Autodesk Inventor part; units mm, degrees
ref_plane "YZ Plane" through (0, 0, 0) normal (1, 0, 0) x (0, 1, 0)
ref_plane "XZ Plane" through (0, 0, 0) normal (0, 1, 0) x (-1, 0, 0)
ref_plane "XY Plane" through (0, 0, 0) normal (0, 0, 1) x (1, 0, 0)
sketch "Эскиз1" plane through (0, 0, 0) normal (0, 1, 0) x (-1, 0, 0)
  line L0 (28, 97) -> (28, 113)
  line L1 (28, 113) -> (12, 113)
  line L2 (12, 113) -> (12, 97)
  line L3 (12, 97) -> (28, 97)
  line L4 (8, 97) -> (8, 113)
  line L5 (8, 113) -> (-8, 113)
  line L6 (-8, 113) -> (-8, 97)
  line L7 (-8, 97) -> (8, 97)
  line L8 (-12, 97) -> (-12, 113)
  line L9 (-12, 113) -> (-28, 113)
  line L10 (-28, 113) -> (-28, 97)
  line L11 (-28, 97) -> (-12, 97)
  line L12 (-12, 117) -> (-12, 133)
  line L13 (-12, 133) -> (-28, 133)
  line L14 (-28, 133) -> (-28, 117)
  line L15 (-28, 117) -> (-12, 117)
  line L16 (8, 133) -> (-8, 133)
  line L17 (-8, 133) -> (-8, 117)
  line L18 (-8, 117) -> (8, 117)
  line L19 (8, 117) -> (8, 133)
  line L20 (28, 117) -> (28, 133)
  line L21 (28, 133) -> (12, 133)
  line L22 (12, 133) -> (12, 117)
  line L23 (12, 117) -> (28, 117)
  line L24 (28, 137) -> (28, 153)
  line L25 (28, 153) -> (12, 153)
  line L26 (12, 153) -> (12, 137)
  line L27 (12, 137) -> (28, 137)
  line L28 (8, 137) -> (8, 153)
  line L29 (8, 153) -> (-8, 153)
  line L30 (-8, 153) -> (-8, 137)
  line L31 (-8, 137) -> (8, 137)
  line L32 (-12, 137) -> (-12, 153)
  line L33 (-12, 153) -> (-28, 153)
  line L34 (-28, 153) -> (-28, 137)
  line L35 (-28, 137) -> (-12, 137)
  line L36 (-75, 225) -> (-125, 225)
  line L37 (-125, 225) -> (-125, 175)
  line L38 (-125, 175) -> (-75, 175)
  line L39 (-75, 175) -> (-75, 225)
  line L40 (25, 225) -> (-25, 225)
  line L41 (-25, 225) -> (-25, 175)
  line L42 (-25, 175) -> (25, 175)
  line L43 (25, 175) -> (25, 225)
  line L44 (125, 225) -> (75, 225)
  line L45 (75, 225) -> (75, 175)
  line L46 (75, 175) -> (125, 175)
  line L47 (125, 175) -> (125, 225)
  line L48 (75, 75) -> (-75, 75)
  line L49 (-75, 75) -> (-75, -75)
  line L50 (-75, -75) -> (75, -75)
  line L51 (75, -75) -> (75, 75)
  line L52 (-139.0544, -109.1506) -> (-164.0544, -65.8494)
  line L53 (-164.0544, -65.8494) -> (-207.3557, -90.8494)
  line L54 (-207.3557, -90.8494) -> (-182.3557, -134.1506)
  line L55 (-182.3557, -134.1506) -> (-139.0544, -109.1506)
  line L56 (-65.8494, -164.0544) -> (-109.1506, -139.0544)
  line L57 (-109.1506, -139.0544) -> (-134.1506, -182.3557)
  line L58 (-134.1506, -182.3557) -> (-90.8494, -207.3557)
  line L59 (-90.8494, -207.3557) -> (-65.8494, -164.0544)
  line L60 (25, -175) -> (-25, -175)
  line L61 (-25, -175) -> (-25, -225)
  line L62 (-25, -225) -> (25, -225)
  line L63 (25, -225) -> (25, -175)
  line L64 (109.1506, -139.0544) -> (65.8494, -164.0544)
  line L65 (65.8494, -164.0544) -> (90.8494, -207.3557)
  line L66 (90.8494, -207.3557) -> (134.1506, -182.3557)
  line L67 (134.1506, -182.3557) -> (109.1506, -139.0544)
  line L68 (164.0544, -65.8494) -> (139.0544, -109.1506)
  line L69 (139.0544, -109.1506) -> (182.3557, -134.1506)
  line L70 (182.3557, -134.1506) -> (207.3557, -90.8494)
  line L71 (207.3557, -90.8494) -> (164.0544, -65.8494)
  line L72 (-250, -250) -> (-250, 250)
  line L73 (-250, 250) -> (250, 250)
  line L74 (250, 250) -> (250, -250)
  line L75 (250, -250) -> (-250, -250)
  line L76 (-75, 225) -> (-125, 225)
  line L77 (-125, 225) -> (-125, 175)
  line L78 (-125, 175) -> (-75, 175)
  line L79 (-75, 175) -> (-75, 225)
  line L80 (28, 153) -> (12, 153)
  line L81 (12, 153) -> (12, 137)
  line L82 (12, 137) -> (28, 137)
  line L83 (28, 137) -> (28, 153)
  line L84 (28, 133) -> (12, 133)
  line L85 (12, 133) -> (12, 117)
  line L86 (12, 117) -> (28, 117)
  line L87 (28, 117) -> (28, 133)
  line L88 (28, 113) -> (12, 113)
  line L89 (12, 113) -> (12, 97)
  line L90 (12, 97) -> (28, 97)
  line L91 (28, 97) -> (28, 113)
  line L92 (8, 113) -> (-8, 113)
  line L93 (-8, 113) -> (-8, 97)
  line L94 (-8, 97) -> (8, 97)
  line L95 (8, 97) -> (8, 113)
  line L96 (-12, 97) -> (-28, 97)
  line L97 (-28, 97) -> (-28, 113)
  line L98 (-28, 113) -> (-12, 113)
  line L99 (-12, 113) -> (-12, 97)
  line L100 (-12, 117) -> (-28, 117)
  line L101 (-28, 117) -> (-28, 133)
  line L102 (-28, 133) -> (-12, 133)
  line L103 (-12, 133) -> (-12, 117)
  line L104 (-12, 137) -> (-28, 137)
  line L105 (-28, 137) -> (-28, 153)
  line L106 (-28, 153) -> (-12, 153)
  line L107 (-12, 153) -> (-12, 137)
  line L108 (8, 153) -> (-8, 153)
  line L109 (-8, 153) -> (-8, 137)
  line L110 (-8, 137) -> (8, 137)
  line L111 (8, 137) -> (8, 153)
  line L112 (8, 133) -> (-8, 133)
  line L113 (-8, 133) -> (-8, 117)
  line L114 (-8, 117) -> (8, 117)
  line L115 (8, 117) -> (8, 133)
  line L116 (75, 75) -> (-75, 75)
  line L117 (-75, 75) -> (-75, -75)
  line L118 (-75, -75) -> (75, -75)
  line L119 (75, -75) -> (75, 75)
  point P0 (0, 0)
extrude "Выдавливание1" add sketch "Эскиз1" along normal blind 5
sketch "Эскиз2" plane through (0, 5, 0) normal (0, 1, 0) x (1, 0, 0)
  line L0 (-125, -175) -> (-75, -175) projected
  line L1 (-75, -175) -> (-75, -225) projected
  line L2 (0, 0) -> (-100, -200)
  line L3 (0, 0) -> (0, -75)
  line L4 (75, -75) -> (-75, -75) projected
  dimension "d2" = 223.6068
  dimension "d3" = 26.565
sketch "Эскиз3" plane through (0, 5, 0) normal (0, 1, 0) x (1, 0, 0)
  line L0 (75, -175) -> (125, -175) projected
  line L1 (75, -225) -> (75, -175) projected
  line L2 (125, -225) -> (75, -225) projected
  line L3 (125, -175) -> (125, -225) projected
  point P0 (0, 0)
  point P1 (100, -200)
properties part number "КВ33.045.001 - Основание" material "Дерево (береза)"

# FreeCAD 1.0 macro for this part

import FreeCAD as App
import Part
import Sketcher
from FreeCAD import Vector
Q = App.Units.Quantity

doc = App.newDocument("Part")
body = doc.addObject("PartDesign::Body", "Body")

sketch1 = body.newObject("Sketcher::SketchObject", "Sketch")
sketch1.AttachmentSupport = (doc.getObject("XZ_Plane"), [""])
sketch1.MapMode = "FlatFace"
sketch1.addGeometry([
    Part.LineSegment(Vector(250, 250, 0), Vector(250, -250, 0)),
    Part.LineSegment(Vector(250, -250, 0), Vector(-250, -250, 0)),
    Part.LineSegment(Vector(-250, -250, 0), Vector(-250, 250, 0)),
    Part.LineSegment(Vector(-250, 250, 0), Vector(250, 250, 0)),
    Part.LineSegment(Vector(109, -139, 0), Vector(66, -164, 0)),
    Part.LineSegment(Vector(66, -164, 0), Vector(91, -207, 0)),
    Part.LineSegment(Vector(91, -207, 0), Vector(134, -182, 0)),
    Part.LineSegment(Vector(134, -182, 0), Vector(109, -139, 0)),
    Part.LineSegment(Vector(164, -66, 0), Vector(139, -109, 0)),
    Part.LineSegment(Vector(139, -109, 0), Vector(182, -134, 0)),
    Part.LineSegment(Vector(182, -134, 0), Vector(207, -91, 0)),
    Part.LineSegment(Vector(207, -91, 0), Vector(164, -66, 0)),
    Part.LineSegment(Vector(25, -175, 0), Vector(-25, -175, 0)),
    Part.LineSegment(Vector(-25, -175, 0), Vector(-25, -225, 0)),
    Part.LineSegment(Vector(-25, -225, 0), Vector(25, -225, 0)),
    Part.LineSegment(Vector(25, -225, 0), Vector(25, -175, 0)),
    Part.LineSegment(Vector(-66, -164, 0), Vector(-109, -139, 0)),
    Part.LineSegment(Vector(-109, -139, 0), Vector(-134, -182, 0)),
    Part.LineSegment(Vector(-134, -182, 0), Vector(-91, -207, 0)),
    Part.LineSegment(Vector(-91, -207, 0), Vector(-66, -164, 0)),
    Part.LineSegment(Vector(-139, -109, 0), Vector(-164, -66, 0)),
    Part.LineSegment(Vector(-164, -66, 0), Vector(-207, -91, 0)),
    Part.LineSegment(Vector(-207, -91, 0), Vector(-182, -134, 0)),
    Part.LineSegment(Vector(-182, -134, 0), Vector(-139, -109, 0)),
    Part.LineSegment(Vector(12, 113, 0), Vector(12, 97, 0)),
    Part.LineSegment(Vector(12, 97, 0), Vector(28, 97, 0)),
    Part.LineSegment(Vector(28, 97, 0), Vector(28, 113, 0)),
    Part.LineSegment(Vector(28, 113, 0), Vector(12, 113, 0)),
    Part.LineSegment(Vector(12, 133, 0), Vector(12, 117, 0)),
    Part.LineSegment(Vector(12, 117, 0), Vector(28, 117, 0)),
    Part.LineSegment(Vector(28, 117, 0), Vector(28, 133, 0)),
    Part.LineSegment(Vector(28, 133, 0), Vector(12, 133, 0)),
    Part.LineSegment(Vector(12, 153, 0), Vector(12, 137, 0)),
    Part.LineSegment(Vector(12, 137, 0), Vector(28, 137, 0)),
    Part.LineSegment(Vector(28, 137, 0), Vector(28, 153, 0)),
    Part.LineSegment(Vector(28, 153, 0), Vector(12, 153, 0)),
    Part.LineSegment(Vector(125, 225, 0), Vector(75, 225, 0)),
    Part.LineSegment(Vector(75, 225, 0), Vector(75, 175, 0)),
    Part.LineSegment(Vector(75, 175, 0), Vector(125, 175, 0)),
    Part.LineSegment(Vector(125, 175, 0), Vector(125, 225, 0)),
    Part.LineSegment(Vector(75, 75, 0), Vector(-75, 75, 0)),
    Part.LineSegment(Vector(-75, 75, 0), Vector(-75, -75, 0)),
    Part.LineSegment(Vector(-75, -75, 0), Vector(75, -75, 0)),
    Part.LineSegment(Vector(75, -75, 0), Vector(75, 75, 0)),
    Part.LineSegment(Vector(-8, 113, 0), Vector(-8, 97, 0)),
    Part.LineSegment(Vector(-8, 97, 0), Vector(8, 97, 0)),
    Part.LineSegment(Vector(8, 97, 0), Vector(8, 113, 0)),
    Part.LineSegment(Vector(8, 113, 0), Vector(-8, 113, 0)),
    Part.LineSegment(Vector(-28, 113, 0), Vector(-28, 97, 0)),
    Part.LineSegment(Vector(-28, 97, 0), Vector(-12, 97, 0)),
    Part.LineSegment(Vector(-12, 97, 0), Vector(-12, 113, 0)),
    Part.LineSegment(Vector(-12, 113, 0), Vector(-28, 113, 0)),
    Part.LineSegment(Vector(8, 133, 0), Vector(-8, 133, 0)),
    Part.LineSegment(Vector(-8, 133, 0), Vector(-8, 117, 0)),
    Part.LineSegment(Vector(-8, 117, 0), Vector(8, 117, 0)),
    Part.LineSegment(Vector(8, 117, 0), Vector(8, 133, 0)),
    Part.LineSegment(Vector(-28, 133, 0), Vector(-28, 117, 0)),
    Part.LineSegment(Vector(-28, 117, 0), Vector(-12, 117, 0)),
    Part.LineSegment(Vector(-12, 117, 0), Vector(-12, 133, 0)),
    Part.LineSegment(Vector(-12, 133, 0), Vector(-28, 133, 0)),
    Part.LineSegment(Vector(-8, 153, 0), Vector(-8, 137, 0)),
    Part.LineSegment(Vector(-8, 137, 0), Vector(8, 137, 0)),
    Part.LineSegment(Vector(8, 137, 0), Vector(8, 153, 0)),
    Part.LineSegment(Vector(8, 153, 0), Vector(-8, 153, 0)),
    Part.LineSegment(Vector(-28, 153, 0), Vector(-28, 137, 0)),
    Part.LineSegment(Vector(-28, 137, 0), Vector(-12, 137, 0)),
    Part.LineSegment(Vector(-12, 137, 0), Vector(-12, 153, 0)),
    Part.LineSegment(Vector(-12, 153, 0), Vector(-28, 153, 0)),
    Part.LineSegment(Vector(25, 225, 0), Vector(-25, 225, 0)),
    Part.LineSegment(Vector(-25, 225, 0), Vector(-25, 175, 0)),
    Part.LineSegment(Vector(-25, 175, 0), Vector(25, 175, 0)),
    Part.LineSegment(Vector(25, 175, 0), Vector(25, 225, 0)),
    Part.LineSegment(Vector(-75, 225, 0), Vector(-125, 225, 0)),
    Part.LineSegment(Vector(-125, 225, 0), Vector(-125, 175, 0)),
    Part.LineSegment(Vector(-125, 175, 0), Vector(-75, 175, 0)),
    Part.LineSegment(Vector(-75, 175, 0), Vector(-75, 225, 0)),
], False)
sketch1.addConstraint([
    Sketcher.Constraint("Coincident", 0, 2, 1, 1),
    Sketcher.Constraint("Coincident", 1, 2, 2, 1),
    Sketcher.Constraint("Coincident", 2, 2, 3, 1),
    Sketcher.Constraint("Coincident", 3, 2, 0, 1),
    Sketcher.Constraint("Coincident", 4, 2, 5, 1),
    Sketcher.Constraint("Coincident", 5, 2, 6, 1),
    Sketcher.Constraint("Coincident", 6, 2, 7, 1),
    Sketcher.Constraint("Coincident", 7, 2, 4, 1),
    Sketcher.Constraint("Coincident", 8, 2, 9, 1),
    Sketcher.Constraint("Coincident", 9, 2, 10, 1),
    Sketcher.Constraint("Coincident", 10, 2, 11, 1),
    Sketcher.Constraint("Coincident", 11, 2, 8, 1),
    Sketcher.Constraint("Coincident", 12, 2, 13, 1),
    Sketcher.Constraint("Coincident", 13, 2, 14, 1),
    Sketcher.Constraint("Coincident", 14, 2, 15, 1),
    Sketcher.Constraint("Coincident", 15, 2, 12, 1),
    Sketcher.Constraint("Coincident", 16, 2, 17, 1),
    Sketcher.Constraint("Coincident", 17, 2, 18, 1),
    Sketcher.Constraint("Coincident", 18, 2, 19, 1),
    Sketcher.Constraint("Coincident", 19, 2, 16, 1),
    Sketcher.Constraint("Coincident", 20, 2, 21, 1),
    Sketcher.Constraint("Coincident", 21, 2, 22, 1),
    Sketcher.Constraint("Coincident", 22, 2, 23, 1),
    Sketcher.Constraint("Coincident", 23, 2, 20, 1),
    Sketcher.Constraint("Coincident", 24, 2, 25, 1),
    Sketcher.Constraint("Coincident", 25, 2, 26, 1),
    Sketcher.Constraint("Coincident", 26, 2, 27, 1),
    Sketcher.Constraint("Coincident", 27, 2, 24, 1),
    Sketcher.Constraint("Coincident", 28, 2, 29, 1),
    Sketcher.Constraint("Coincident", 29, 2, 30, 1),
    Sketcher.Constraint("Coincident", 30, 2, 31, 1),
    Sketcher.Constraint("Coincident", 31, 2, 28, 1),
    Sketcher.Constraint("Coincident", 32, 2, 33, 1),
    Sketcher.Constraint("Coincident", 33, 2, 34, 1),
    Sketcher.Constraint("Coincident", 34, 2, 35, 1),
    Sketcher.Constraint("Coincident", 35, 2, 32, 1),
    Sketcher.Constraint("Coincident", 36, 2, 37, 1),
    Sketcher.Constraint("Coincident", 37, 2, 38, 1),
    Sketcher.Constraint("Coincident", 38, 2, 39, 1),
    Sketcher.Constraint("Coincident", 39, 2, 36, 1),
    Sketcher.Constraint("Coincident", 40, 2, 41, 1),
    Sketcher.Constraint("Coincident", 41, 2, 42, 1),
    Sketcher.Constraint("Coincident", 42, 2, 43, 1),
    Sketcher.Constraint("Coincident", 43, 2, 40, 1),
    Sketcher.Constraint("Coincident", 44, 2, 45, 1),
    Sketcher.Constraint("Coincident", 45, 2, 46, 1),
    Sketcher.Constraint("Coincident", 46, 2, 47, 1),
    Sketcher.Constraint("Coincident", 47, 2, 44, 1),
    Sketcher.Constraint("Coincident", 48, 2, 49, 1),
    Sketcher.Constraint("Coincident", 49, 2, 50, 1),
    Sketcher.Constraint("Coincident", 50, 2, 51, 1),
    Sketcher.Constraint("Coincident", 51, 2, 48, 1),
    Sketcher.Constraint("Coincident", 52, 2, 53, 1),
    Sketcher.Constraint("Coincident", 53, 2, 54, 1),
    Sketcher.Constraint("Coincident", 54, 2, 55, 1),
    Sketcher.Constraint("Coincident", 55, 2, 52, 1),
    Sketcher.Constraint("Coincident", 56, 2, 57, 1),
    Sketcher.Constraint("Coincident", 57, 2, 58, 1),
    Sketcher.Constraint("Coincident", 58, 2, 59, 1),
    Sketcher.Constraint("Coincident", 59, 2, 56, 1),
    Sketcher.Constraint("Coincident", 60, 2, 61, 1),
    Sketcher.Constraint("Coincident", 61, 2, 62, 1),
    Sketcher.Constraint("Coincident", 62, 2, 63, 1),
    Sketcher.Constraint("Coincident", 63, 2, 60, 1),
    Sketcher.Constraint("Coincident", 64, 2, 65, 1),
    Sketcher.Constraint("Coincident", 65, 2, 66, 1),
    Sketcher.Constraint("Coincident", 66, 2, 67, 1),
    Sketcher.Constraint("Coincident", 67, 2, 64, 1),
    Sketcher.Constraint("Coincident", 68, 2, 69, 1),
    Sketcher.Constraint("Coincident", 69, 2, 70, 1),
    Sketcher.Constraint("Coincident", 70, 2, 71, 1),
    Sketcher.Constraint("Coincident", 71, 2, 68, 1),
    Sketcher.Constraint("Coincident", 72, 2, 73, 1),
    Sketcher.Constraint("Coincident", 73, 2, 74, 1),
    Sketcher.Constraint("Coincident", 74, 2, 75, 1),
    Sketcher.Constraint("Coincident", 75, 2, 72, 1),
    Sketcher.Constraint("Vertical", 0),
    Sketcher.Constraint("Horizontal", 1),
    Sketcher.Constraint("Vertical", 2),
    Sketcher.Constraint("Horizontal", 3),
    Sketcher.Constraint("Horizontal", 12),
    Sketcher.Constraint("Vertical", 13),
    Sketcher.Constraint("Horizontal", 14),
    Sketcher.Constraint("Vertical", 15),
    Sketcher.Constraint("Vertical", 24),
    Sketcher.Constraint("Horizontal", 25),
    Sketcher.Constraint("Vertical", 26),
    Sketcher.Constraint("Horizontal", 27),
    Sketcher.Constraint("Vertical", 28),
    Sketcher.Constraint("Horizontal", 29),
    Sketcher.Constraint("Vertical", 30),
    Sketcher.Constraint("Horizontal", 31),
    Sketcher.Constraint("Vertical", 32),
    Sketcher.Constraint("Horizontal", 33),
    Sketcher.Constraint("Vertical", 34),
    Sketcher.Constraint("Horizontal", 35),
    Sketcher.Constraint("Horizontal", 36),
    Sketcher.Constraint("Vertical", 37),
    Sketcher.Constraint("Horizontal", 38),
    Sketcher.Constraint("Vertical", 39),
    Sketcher.Constraint("Horizontal", 40),
    Sketcher.Constraint("Vertical", 41),
    Sketcher.Constraint("Horizontal", 42),
    Sketcher.Constraint("Vertical", 43),
    Sketcher.Constraint("Vertical", 44),
    Sketcher.Constraint("Horizontal", 45),
    Sketcher.Constraint("Vertical", 46),
    Sketcher.Constraint("Horizontal", 47),
    Sketcher.Constraint("Vertical", 48),
    Sketcher.Constraint("Horizontal", 49),
    Sketcher.Constraint("Vertical", 50),
    Sketcher.Constraint("Horizontal", 51),
    Sketcher.Constraint("Horizontal", 52),
    Sketcher.Constraint("Vertical", 53),
    Sketcher.Constraint("Horizontal", 54),
    Sketcher.Constraint("Vertical", 55),
    Sketcher.Constraint("Vertical", 56),
    Sketcher.Constraint("Horizontal", 57),
    Sketcher.Constraint("Vertical", 58),
    Sketcher.Constraint("Horizontal", 59),
    Sketcher.Constraint("Vertical", 60),
    Sketcher.Constraint("Horizontal", 61),
    Sketcher.Constraint("Vertical", 62),
    Sketcher.Constraint("Horizontal", 63),
    Sketcher.Constraint("Vertical", 64),
    Sketcher.Constraint("Horizontal", 65),
    Sketcher.Constraint("Vertical", 66),
    Sketcher.Constraint("Horizontal", 67),
    Sketcher.Constraint("Horizontal", 68),
    Sketcher.Constraint("Vertical", 69),
    Sketcher.Constraint("Horizontal", 70),
    Sketcher.Constraint("Vertical", 71),
    Sketcher.Constraint("Horizontal", 72),
    Sketcher.Constraint("Vertical", 73),
    Sketcher.Constraint("Horizontal", 74),
    Sketcher.Constraint("Vertical", 75),
    Sketcher.Constraint("Symmetric", 0, 2, 2, 2, -1, 1),
    Sketcher.Constraint("Symmetric", 40, 2, 42, 2, -1, 1),
    Sketcher.Constraint("Symmetric", 14, 2, 68, 2, -1, 1),
    Sketcher.Constraint("Symmetric", 12, 2, 70, 2, -1, 1),
    Sketcher.Constraint("Symmetric", 7, 2, 16, 2, -2),
    Sketcher.Constraint("Symmetric", 6, 2, 17, 2, -2),
    Sketcher.Constraint("Symmetric", 5, 2, 18, 2, -2),
    Sketcher.Constraint("Symmetric", 4, 2, 19, 2, -2),
    Sketcher.Constraint("Symmetric", 11, 2, 20, 2, -2),
    Sketcher.Constraint("Symmetric", 10, 2, 21, 2, -2),
    Sketcher.Constraint("Symmetric", 9, 2, 22, 2, -2),
    Sketcher.Constraint("Symmetric", 8, 2, 23, 2, -2),
    Sketcher.Constraint("Symmetric", 25, 2, 48, 2, -2),
    Sketcher.Constraint("Symmetric", 27, 2, 50, 2, -2),
    Sketcher.Constraint("Symmetric", 29, 2, 56, 2, -2),
    Sketcher.Constraint("Symmetric", 31, 2, 58, 2, -2),
    Sketcher.Constraint("Symmetric", 33, 2, 64, 2, -2),
    Sketcher.Constraint("Symmetric", 35, 2, 66, 2, -2),
    Sketcher.Constraint("Symmetric", 39, 2, 72, 2, -2),
    Sketcher.Constraint("Symmetric", 37, 2, 74, 2, -2),
    Sketcher.Constraint("Perpendicular", 4, 5),
    Sketcher.Constraint("Perpendicular", 5, 6),
    Sketcher.Constraint("Perpendicular", 6, 7),
    Sketcher.Constraint("Perpendicular", 8, 9),
    Sketcher.Constraint("Perpendicular", 9, 10),
    Sketcher.Constraint("Perpendicular", 10, 11),
    Sketcher.Constraint("Parallel", 11, 16),
    Sketcher.Constraint("Horizontal", 25, 2, 44, 2),
    Sketcher.Constraint("Horizontal", 27, 2, 46, 2),
    Sketcher.Constraint("Horizontal", 31, 2, 52, 2),
    Sketcher.Constraint("Horizontal", 29, 2, 53, 2),
    Sketcher.Constraint("Horizontal", 33, 2, 60, 2),
    Sketcher.Constraint("Horizontal", 35, 2, 62, 2),
    Sketcher.Constraint("Horizontal", 39, 2, 68, 2),
    Sketcher.Constraint("Horizontal", 38, 2, 69, 2),
    Sketcher.Constraint("Vertical", 27, 2, 28, 2),
    Sketcher.Constraint("Vertical", 26, 2, 29, 2),
    Sketcher.Constraint("Vertical", 31, 2, 32, 2),
    Sketcher.Constraint("Vertical", 30, 2, 33, 2),
    Sketcher.Constraint("Vertical", 37, 2, 42, 2),
    Sketcher.Constraint("Vertical", 47, 2, 52, 2),
    Sketcher.Constraint("Vertical", 46, 2, 54, 2),
    Sketcher.Constraint("Vertical", 53, 2, 60, 2),
    Sketcher.Constraint("Vertical", 55, 2, 61, 2),
    Sketcher.Constraint("Vertical", 13, 2, 68, 2),
    Sketcher.Constraint("Equal", 14, 36),
    Sketcher.Constraint("Equal", 35, 45),
    Sketcher.Constraint("Equal", 3, 0),
    Sketcher.Constraint("Equal", 74, 13),
    Sketcher.Constraint("Equal", 67, 24),
    Sketcher.Constraint("Equal", 26, 28),
    Sketcher.Constraint("Equal", 30, 32),
    Sketcher.Constraint("Equal", 42, 41),
    Sketcher.Constraint("Equal", 4, 5),
    Sketcher.Constraint("Equal", 7, 8),
    Sketcher.Constraint("Equal", 8, 9),
    Sketcher.Constraint("DistanceX", 1, 2, 1, 1, Q("500 mm")),
    Sketcher.Constraint("DistanceX", 12, 2, 12, 1, Q("50 mm")),
    Sketcher.Constraint("DistanceX", 25, 1, 25, 2, Q("16 mm")),
    Sketcher.Constraint("DistanceX", 40, 2, 40, 1, Q("150 mm")),
    Sketcher.Constraint("Angle", 4, Q("-150 deg")),
    Sketcher.Constraint("Distance", 4, Q("50 mm")),
    Sketcher.Constraint("DistanceY", 12, 2, -1, 1, Q("175 mm")),
    Sketcher.Constraint("DistanceX", -1, 1, 24, 2, Q("12 mm")),
    Sketcher.Constraint("DistanceY", -1, 1, 24, 2, Q("97 mm")),
    Sketcher.Constraint("DistanceY", -1, 1, 28, 2, Q("117 mm")),
    Sketcher.Constraint("DistanceY", -1, 1, 32, 2, Q("137 mm")),
    Sketcher.Constraint("DistanceX", 44, 2, -1, 1, Q("8 mm")),
    Sketcher.Constraint("DistanceX", -1, 1, 4, 2, Q("65.8494 mm")),
    Sketcher.Constraint("DistanceY", 4, 2, -1, 1, Q("164.0544 mm")),
    Sketcher.Constraint("DistanceX", -1, 1, 8, 2, Q("139.0544 mm")),
    Sketcher.Constraint("DistanceY", 8, 2, -1, 1, Q("109.1506 mm")),
])
pad1 = body.newObject("PartDesign::Pad", "Pad")
pad1.Profile = sketch1
pad1.Length = 5
pad1.Reversed = True

doc.recompute()
